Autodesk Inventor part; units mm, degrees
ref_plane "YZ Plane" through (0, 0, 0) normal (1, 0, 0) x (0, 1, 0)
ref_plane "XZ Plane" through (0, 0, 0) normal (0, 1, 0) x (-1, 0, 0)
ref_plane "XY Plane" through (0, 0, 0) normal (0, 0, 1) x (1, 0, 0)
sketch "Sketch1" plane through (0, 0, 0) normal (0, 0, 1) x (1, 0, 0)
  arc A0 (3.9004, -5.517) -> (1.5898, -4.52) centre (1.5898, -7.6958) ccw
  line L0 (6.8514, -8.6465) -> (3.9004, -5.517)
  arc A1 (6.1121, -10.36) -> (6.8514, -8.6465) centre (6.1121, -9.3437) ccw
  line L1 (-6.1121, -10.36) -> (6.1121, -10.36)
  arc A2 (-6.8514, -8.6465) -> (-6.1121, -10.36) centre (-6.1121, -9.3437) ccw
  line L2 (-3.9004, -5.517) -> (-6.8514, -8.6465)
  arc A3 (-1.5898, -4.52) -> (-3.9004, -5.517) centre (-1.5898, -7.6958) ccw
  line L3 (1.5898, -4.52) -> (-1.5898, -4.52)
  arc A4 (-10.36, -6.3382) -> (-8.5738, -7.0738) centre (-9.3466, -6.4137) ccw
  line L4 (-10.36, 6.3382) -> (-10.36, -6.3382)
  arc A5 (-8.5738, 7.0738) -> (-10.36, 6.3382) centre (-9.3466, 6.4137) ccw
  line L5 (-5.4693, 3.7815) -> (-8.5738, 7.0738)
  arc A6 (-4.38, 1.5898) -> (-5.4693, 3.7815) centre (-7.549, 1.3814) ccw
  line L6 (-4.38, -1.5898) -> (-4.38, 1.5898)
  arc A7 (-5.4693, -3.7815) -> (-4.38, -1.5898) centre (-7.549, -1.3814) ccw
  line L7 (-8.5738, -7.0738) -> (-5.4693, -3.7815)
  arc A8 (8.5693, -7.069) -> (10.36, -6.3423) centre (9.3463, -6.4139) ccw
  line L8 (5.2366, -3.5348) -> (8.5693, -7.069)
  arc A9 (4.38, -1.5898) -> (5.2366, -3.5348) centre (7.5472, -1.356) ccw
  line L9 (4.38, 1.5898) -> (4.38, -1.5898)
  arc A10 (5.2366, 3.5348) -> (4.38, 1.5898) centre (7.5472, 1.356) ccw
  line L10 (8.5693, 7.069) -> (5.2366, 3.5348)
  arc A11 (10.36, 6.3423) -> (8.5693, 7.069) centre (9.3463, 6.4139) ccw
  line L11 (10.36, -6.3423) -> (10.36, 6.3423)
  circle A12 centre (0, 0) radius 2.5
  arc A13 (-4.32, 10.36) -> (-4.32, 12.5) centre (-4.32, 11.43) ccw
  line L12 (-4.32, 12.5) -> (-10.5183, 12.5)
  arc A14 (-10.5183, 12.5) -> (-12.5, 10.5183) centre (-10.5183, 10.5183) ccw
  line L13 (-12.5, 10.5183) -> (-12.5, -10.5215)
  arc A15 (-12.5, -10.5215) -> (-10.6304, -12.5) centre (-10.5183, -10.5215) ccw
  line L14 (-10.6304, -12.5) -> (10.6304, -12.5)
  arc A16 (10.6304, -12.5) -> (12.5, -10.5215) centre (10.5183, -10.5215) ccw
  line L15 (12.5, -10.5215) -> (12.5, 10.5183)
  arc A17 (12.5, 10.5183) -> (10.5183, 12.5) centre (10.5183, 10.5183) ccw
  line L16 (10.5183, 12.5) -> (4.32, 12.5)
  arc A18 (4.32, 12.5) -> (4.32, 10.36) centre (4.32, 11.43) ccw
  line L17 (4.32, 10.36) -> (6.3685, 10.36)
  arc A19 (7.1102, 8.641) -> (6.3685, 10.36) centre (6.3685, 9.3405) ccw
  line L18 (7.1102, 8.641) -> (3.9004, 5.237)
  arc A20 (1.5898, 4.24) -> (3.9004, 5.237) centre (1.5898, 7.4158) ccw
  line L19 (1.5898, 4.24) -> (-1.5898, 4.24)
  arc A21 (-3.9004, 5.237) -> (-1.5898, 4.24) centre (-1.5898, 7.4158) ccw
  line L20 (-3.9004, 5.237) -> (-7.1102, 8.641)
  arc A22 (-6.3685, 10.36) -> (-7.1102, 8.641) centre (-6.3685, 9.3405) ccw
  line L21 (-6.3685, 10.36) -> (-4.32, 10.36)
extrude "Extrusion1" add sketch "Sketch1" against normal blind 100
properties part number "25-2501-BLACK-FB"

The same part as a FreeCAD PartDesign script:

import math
import FreeCAD as App
import Part
import Sketcher

doc = App.newDocument("Part")
body = doc.addObject("PartDesign::Body", "Body")

sketch1 = body.newObject("Sketcher::SketchObject", "Sketch")
sketch1.AttachmentSupport = (doc.getObject("XY_Plane"), [""])
sketch1.MapMode = "FlatFace"
sketch1.addGeometry(Part.LineSegment(App.Vector(-6.3685, 10.36, 0), App.Vector(-4.32, 10.36, 0)), False)
sketch1.addGeometry(Part.ArcOfCircle(Part.Circle(App.Vector(-4.32, 11.43, 0), App.Vector(0, 0, 1), 1.07), math.radians(-90), math.radians(90)), False)
sketch1.addGeometry(Part.LineSegment(App.Vector(-4.32, 12.5, 0), App.Vector(-10.5183, 12.5, 0)), False)
sketch1.addGeometry(Part.ArcOfCircle(Part.Circle(App.Vector(-10.5183, 10.5183, 0), App.Vector(0, 0, 1), 1.9817), math.radians(90), math.radians(180)), False)
sketch1.addGeometry(Part.LineSegment(App.Vector(-12.5, 10.5183, 0), App.Vector(-12.5, -10.5215, 0)), False)
sketch1.addGeometry(Part.ArcOfCircle(Part.Circle(App.Vector(-10.5183, -10.5215, 0), App.Vector(0, 0, 1), 1.9817), math.radians(180), math.radians(266.757141)), False)
sketch1.addGeometry(Part.LineSegment(App.Vector(-10.6304, -12.5, 0), App.Vector(10.6304, -12.5, 0)), False)
sketch1.addGeometry(Part.ArcOfCircle(Part.Circle(App.Vector(10.5183, -10.5215, 0), App.Vector(0, 0, 1), 1.981673), math.radians(-86.757141), math.radians(0)), False)
sketch1.addGeometry(Part.LineSegment(App.Vector(12.5, -10.5215, 0), App.Vector(12.5, 10.5183, 0)), False)
sketch1.addGeometry(Part.ArcOfCircle(Part.Circle(App.Vector(10.5183, 10.5183, 0), App.Vector(0, 0, 1), 1.9817), math.radians(0), math.radians(90)), False)
sketch1.addGeometry(Part.LineSegment(App.Vector(10.5183, 12.5, 0), App.Vector(4.32, 12.5, 0)), False)
sketch1.addGeometry(Part.ArcOfCircle(Part.Circle(App.Vector(4.32, 11.43, 0), App.Vector(0, 0, 1), 1.07), math.radians(90), math.radians(270)), False)
sketch1.addGeometry(Part.LineSegment(App.Vector(4.32, 10.36, 0), App.Vector(6.3685, 10.36, 0)), False)
sketch1.addGeometry(Part.ArcOfCircle(Part.Circle(App.Vector(6.3685, 9.3405, 0), App.Vector(0, 0, 1), 1.019519), math.radians(-43.322793), math.radians(90)), False)
sketch1.addGeometry(Part.LineSegment(App.Vector(7.1102, 8.641, 0), App.Vector(3.9004, 5.237, 0)), False)
sketch1.addGeometry(Part.ArcOfCircle(Part.Circle(App.Vector(1.5898, 7.4158, 0), App.Vector(0, 0, 1), 3.1758), math.radians(-90), math.radians(-43.318391)), False)
sketch1.addGeometry(Part.LineSegment(App.Vector(1.5898, 4.24, 0), App.Vector(-1.5898, 4.24, 0)), False)
sketch1.addGeometry(Part.ArcOfCircle(Part.Circle(App.Vector(-1.5898, 7.4158, 0), App.Vector(0, 0, 1), 3.175853), math.radians(-136.681609), math.radians(-90)), False)
sketch1.addGeometry(Part.LineSegment(App.Vector(-3.9004, 5.237, 0), App.Vector(-7.1102, 8.641, 0)), False)
sketch1.addGeometry(Part.ArcOfCircle(Part.Circle(App.Vector(-6.3685, 9.3405, 0), App.Vector(0, 0, 1), 1.0195), math.radians(90), math.radians(223.322793)), False)
sketch1.addGeometry(Part.ArcOfCircle(Part.Circle(App.Vector(1.5898, -7.6958, 0), App.Vector(0, 0, 1), 3.175853), math.radians(43.318391), math.radians(90)), False)
sketch1.addGeometry(Part.LineSegment(App.Vector(3.9004, -5.517, 0), App.Vector(6.8514, -8.6465, 0)), False)
sketch1.addGeometry(Part.ArcOfCircle(Part.Circle(App.Vector(6.1121, -9.3437, 0), App.Vector(0, 0, 1), 1.0163), math.radians(-90), math.radians(43.321293)), False)
sketch1.addGeometry(Part.LineSegment(App.Vector(6.1121, -10.36, 0), App.Vector(-6.1121, -10.36, 0)), False)
sketch1.addGeometry(Part.ArcOfCircle(Part.Circle(App.Vector(-6.1121, -9.3437, 0), App.Vector(0, 0, 1), 1.016195), math.radians(136.678707), math.radians(270)), False)
sketch1.addGeometry(Part.LineSegment(App.Vector(-6.8514, -8.6465, 0), App.Vector(-3.9004, -5.517, 0)), False)
sketch1.addGeometry(Part.ArcOfCircle(Part.Circle(App.Vector(-1.5898, -7.6958, 0), App.Vector(0, 0, 1), 3.1758), math.radians(90), math.radians(136.681609)), False)
sketch1.addGeometry(Part.LineSegment(App.Vector(-1.5898, -4.52, 0), App.Vector(1.5898, -4.52, 0)), False)
sketch1.addGeometry(Part.ArcOfCircle(Part.Circle(App.Vector(9.3463, -6.4139, 0), App.Vector(0, 0, 1), 1.01631), math.radians(-139.865275), math.radians(4.040225)), False)
sketch1.addGeometry(Part.LineSegment(App.Vector(8.5693, -7.069, 0), App.Vector(5.2366, -3.5348, 0)), False)
sketch1.addGeometry(Part.ArcOfCircle(Part.Circle(App.Vector(7.5472, -1.356, 0), App.Vector(0, 0, 1), 3.175818), math.radians(-175.778132), math.radians(-136.681609)), False)
sketch1.addGeometry(Part.LineSegment(App.Vector(4.38, -1.5898, 0), App.Vector(4.38, 1.5898, 0)), False)
sketch1.addGeometry(Part.ArcOfCircle(Part.Circle(App.Vector(7.5472, 1.356, 0), App.Vector(0, 0, 1), 3.175853), math.radians(136.681609), math.radians(175.778132)), False)
sketch1.addGeometry(Part.LineSegment(App.Vector(5.2366, 3.5348, 0), App.Vector(8.5693, 7.069, 0)), False)
sketch1.addGeometry(Part.ArcOfCircle(Part.Circle(App.Vector(9.3463, 6.4139, 0), App.Vector(0, 0, 1), 1.016225), math.radians(-4.040225), math.radians(139.865275)), False)
sketch1.addGeometry(Part.LineSegment(App.Vector(10.36, 6.3423, 0), App.Vector(10.36, -6.3423, 0)), False)
sketch1.addGeometry(Part.ArcOfCircle(Part.Circle(App.Vector(-9.3466, -6.4137, 0), App.Vector(0, 0, 1), 1.016209), math.radians(175.73924), math.radians(319.497152)), False)
sketch1.addGeometry(Part.LineSegment(App.Vector(-10.36, -6.3382, 0), App.Vector(-10.36, 6.3382, 0)), False)
sketch1.addGeometry(Part.ArcOfCircle(Part.Circle(App.Vector(-9.3466, 6.4137, 0), App.Vector(0, 0, 1), 1.016342), math.radians(40.502848), math.radians(184.26076)), False)
sketch1.addGeometry(Part.LineSegment(App.Vector(-8.5738, 7.0738, 0), App.Vector(-5.4693, 3.7815, 0)), False)
sketch1.addGeometry(Part.ArcOfCircle(Part.Circle(App.Vector(-7.549, 1.3814, 0), App.Vector(0, 0, 1), 3.175845), math.radians(3.762472), math.radians(49.090888)), False)
sketch1.addGeometry(Part.LineSegment(App.Vector(-4.38, 1.5898, 0), App.Vector(-4.38, -1.5898, 0)), False)
sketch1.addGeometry(Part.ArcOfCircle(Part.Circle(App.Vector(-7.549, -1.3814, 0), App.Vector(0, 0, 1), 3.175788), math.radians(-49.090888), math.radians(-3.762472)), False)
sketch1.addGeometry(Part.LineSegment(App.Vector(-5.4693, -3.7815, 0), App.Vector(-8.5738, -7.0738, 0)), False)
sketch1.addGeometry(Part.Circle(App.Vector(0, 0, 0), App.Vector(0, 0, 1), 2.5), False)
sketch1.addConstraint(Sketcher.Constraint("Coincident", 0, 2, 1, 1))
sketch1.addConstraint(Sketcher.Constraint("Coincident", 1, 2, 2, 1))
sketch1.addConstraint(Sketcher.Constraint("Coincident", 2, 2, 3, 1))
sketch1.addConstraint(Sketcher.Constraint("Coincident", 3, 2, 4, 1))
sketch1.addConstraint(Sketcher.Constraint("Coincident", 4, 2, 5, 1))
sketch1.addConstraint(Sketcher.Constraint("Coincident", 5, 2, 6, 1))
sketch1.addConstraint(Sketcher.Constraint("Coincident", 6, 2, 7, 1))
sketch1.addConstraint(Sketcher.Constraint("Coincident", 7, 2, 8, 1))
sketch1.addConstraint(Sketcher.Constraint("Coincident", 8, 2, 9, 1))
sketch1.addConstraint(Sketcher.Constraint("Coincident", 9, 2, 10, 1))
sketch1.addConstraint(Sketcher.Constraint("Coincident", 10, 2, 11, 1))
sketch1.addConstraint(Sketcher.Constraint("Coincident", 11, 2, 12, 1))
sketch1.addConstraint(Sketcher.Constraint("Coincident", 12, 2, 13, 2))
sketch1.addConstraint(Sketcher.Constraint("Coincident", 13, 1, 14, 1))
sketch1.addConstraint(Sketcher.Constraint("Coincident", 14, 2, 15, 2))
sketch1.addConstraint(Sketcher.Constraint("Coincident", 15, 1, 16, 1))
sketch1.addConstraint(Sketcher.Constraint("Coincident", 16, 2, 17, 2))
sketch1.addConstraint(Sketcher.Constraint("Coincident", 17, 1, 18, 1))
sketch1.addConstraint(Sketcher.Constraint("Coincident", 18, 2, 19, 2))
sketch1.addConstraint(Sketcher.Constraint("Coincident", 19, 1, 0, 1))
sketch1.addConstraint(Sketcher.Constraint("Coincident", 20, 1, 21, 1))
sketch1.addConstraint(Sketcher.Constraint("Coincident", 21, 2, 22, 2))
sketch1.addConstraint(Sketcher.Constraint("Coincident", 22, 1, 23, 1))
sketch1.addConstraint(Sketcher.Constraint("Coincident", 23, 2, 24, 2))
sketch1.addConstraint(Sketcher.Constraint("Coincident", 24, 1, 25, 1))
sketch1.addConstraint(Sketcher.Constraint("Coincident", 25, 2, 26, 2))
sketch1.addConstraint(Sketcher.Constraint("Coincident", 26, 1, 27, 1))
sketch1.addConstraint(Sketcher.Constraint("Coincident", 27, 2, 20, 2))
sketch1.addConstraint(Sketcher.Constraint("Coincident", 28, 1, 29, 1))
sketch1.addConstraint(Sketcher.Constraint("Coincident", 29, 2, 30, 2))
sketch1.addConstraint(Sketcher.Constraint("Coincident", 30, 1, 31, 1))
sketch1.addConstraint(Sketcher.Constraint("Coincident", 31, 2, 32, 2))
sketch1.addConstraint(Sketcher.Constraint("Coincident", 32, 1, 33, 1))
sketch1.addConstraint(Sketcher.Constraint("Coincident", 33, 2, 34, 2))
sketch1.addConstraint(Sketcher.Constraint("Coincident", 34, 1, 35, 1))
sketch1.addConstraint(Sketcher.Constraint("Coincident", 35, 2, 28, 2))
sketch1.addConstraint(Sketcher.Constraint("Coincident", 36, 1, 37, 1))
sketch1.addConstraint(Sketcher.Constraint("Coincident", 37, 2, 38, 2))
sketch1.addConstraint(Sketcher.Constraint("Coincident", 38, 1, 39, 1))
sketch1.addConstraint(Sketcher.Constraint("Coincident", 39, 2, 40, 2))
sketch1.addConstraint(Sketcher.Constraint("Coincident", 40, 1, 41, 1))
sketch1.addConstraint(Sketcher.Constraint("Coincident", 41, 2, 42, 2))
sketch1.addConstraint(Sketcher.Constraint("Coincident", 42, 1, 43, 1))
sketch1.addConstraint(Sketcher.Constraint("Coincident", 43, 2, 36, 2))
sketch1.addConstraint(Sketcher.Constraint("Horizontal", 0))
sketch1.addConstraint(Sketcher.Constraint("Horizontal", 2))
sketch1.addConstraint(Sketcher.Constraint("Vertical", 4))
sketch1.addConstraint(Sketcher.Constraint("Horizontal", 6))
sketch1.addConstraint(Sketcher.Constraint("Vertical", 8))
sketch1.addConstraint(Sketcher.Constraint("Horizontal", 10))
sketch1.addConstraint(Sketcher.Constraint("Horizontal", 12))
sketch1.addConstraint(Sketcher.Constraint("Horizontal", 16))
sketch1.addConstraint(Sketcher.Constraint("Horizontal", 23))
sketch1.addConstraint(Sketcher.Constraint("Horizontal", 27))
sketch1.addConstraint(Sketcher.Constraint("Vertical", 31))
sketch1.addConstraint(Sketcher.Constraint("Vertical", 35))
sketch1.addConstraint(Sketcher.Constraint("Vertical", 37))
sketch1.addConstraint(Sketcher.Constraint("Vertical", 41))
sketch1.addConstraint(Sketcher.Constraint("Coincident", 44, 3, -1, 1))
sketch1.addConstraint(Sketcher.Constraint("Diameter", 44, 5.0))
sketch1.addConstraint(Sketcher.Constraint("Radius", 1, 1.07))
sketch1.addConstraint(Sketcher.Constraint("Radius", 11, 1.07))
sketch1.addConstraint(Sketcher.Constraint("DistanceY", -1, 1, 1, 2, 12.5))
sketch1.addConstraint(Sketcher.Constraint("DistanceX", 3, 2, -1, 1, 12.5))
sketch1.addConstraint(Sketcher.Constraint("DistanceY", 5, 2, -1, 1, 12.5))
sketch1.addConstraint(Sketcher.Constraint("DistanceX", -1, 1, 7, 2, 12.5))
sketch1.addConstraint(Sketcher.Constraint("DistanceY", -1, 1, 9, 2, 12.5))
sketch1.addConstraint(Sketcher.Constraint("Radius", 3, 1.9817))
sketch1.addConstraint(Sketcher.Constraint("Radius", 5, 1.9817))
sketch1.addConstraint(Sketcher.Constraint("Radius", 7, 1.9817))
sketch1.addConstraint(Sketcher.Constraint("Radius", 9, 1.9817))
sketch1.addConstraint(Sketcher.Constraint("Radius", 13, 1.0195))
sketch1.addConstraint(Sketcher.Constraint("Radius", 15, 3.1758))
sketch1.addConstraint(Sketcher.Constraint("Radius", 17, 3.1759))
sketch1.addConstraint(Sketcher.Constraint("Radius", 19, 1.0195))
sketch1.addConstraint(Sketcher.Constraint("Radius", 20, 3.1759))
sketch1.addConstraint(Sketcher.Constraint("Radius", 22, 1.0163))
sketch1.addConstraint(Sketcher.Constraint("Radius", 24, 1.0162))
sketch1.addConstraint(Sketcher.Constraint("Radius", 26, 3.1758))
sketch1.addConstraint(Sketcher.Constraint("Radius", 28, 1.0163))
sketch1.addConstraint(Sketcher.Constraint("Radius", 30, 3.1758))
sketch1.addConstraint(Sketcher.Constraint("Radius", 32, 3.1759))
sketch1.addConstraint(Sketcher.Constraint("Radius", 34, 1.0162))
sketch1.addConstraint(Sketcher.Constraint("Radius", 36, 1.0162))
sketch1.addConstraint(Sketcher.Constraint("Radius", 38, 1.0163))
sketch1.addConstraint(Sketcher.Constraint("Radius", 40, 3.1758))
sketch1.addConstraint(Sketcher.Constraint("Radius", 42, 3.1758))
sketch1.addConstraint(Sketcher.Constraint("DistanceX", 1, 3, -1, 1, 4.32))
sketch1.addConstraint(Sketcher.Constraint("DistanceX", -1, 1, 11, 3, 4.32))
sketch1.addConstraint(Sketcher.Constraint("DistanceX", 0, 2, -1, 1, 4.32))
sketch1.addConstraint(Sketcher.Constraint("DistanceX", 1, 2, -1, 1, 4.32))
sketch1.addConstraint(Sketcher.Constraint("DistanceX", -1, 1, 10, 2, 4.32))
sketch1.addConstraint(Sketcher.Constraint("DistanceX", -1, 1, 11, 2, 4.32))
sketch1.addConstraint(Sketcher.Constraint("DistanceY", -1, 1, 15, 1, 4.24))
sketch1.addConstraint(Sketcher.Constraint("DistanceY", 22, 1, -1, 1, 10.36))
sketch1.addConstraint(Sketcher.Constraint("DistanceY", 26, 1, -1, 1, 4.52))
sketch1.addConstraint(Sketcher.Constraint("DistanceX", -1, 1, 30, 1, 4.38))
sketch1.addConstraint(Sketcher.Constraint("DistanceX", -1, 1, 34, 1, 10.36))
sketch1.addConstraint(Sketcher.Constraint("DistanceX", 36, 1, -1, 1, 10.36))
sketch1.addConstraint(Sketcher.Constraint("DistanceX", 40, 1, -1, 1, 4.38))
sketch1.addConstraint(Sketcher.Constraint("DistanceX", 0, 1, 0, 2, 2.0485))
sketch1.addConstraint(Sketcher.Constraint("DistanceX", 2, 2, 2, 1, 6.1983))
sketch1.addConstraint(Sketcher.Constraint("DistanceX", 6, 1, 6, 2, 21.2608))
sketch1.addConstraint(Sketcher.Constraint("DistanceX", 10, 2, 10, 1, 6.1983))
sketch1.addConstraint(Sketcher.Constraint("DistanceX", 12, 1, 12, 2, 2.0485))
sketch1.addConstraint(Sketcher.Constraint("DistanceX", 16, 2, 16, 1, 3.1796))
sketch1.addConstraint(Sketcher.Constraint("DistanceX", 23, 2, 23, 1, 12.2242))
sketch1.addConstraint(Sketcher.Constraint("DistanceX", 27, 1, 27, 2, 3.1796))
sketch1.addConstraint(Sketcher.Constraint("DistanceY", 4, 2, 4, 1, 21.0398))
sketch1.addConstraint(Sketcher.Constraint("DistanceY", 8, 1, 8, 2, 21.0398))
sketch1.addConstraint(Sketcher.Constraint("DistanceY", 31, 1, 31, 2, 3.1796))
sketch1.addConstraint(Sketcher.Constraint("DistanceY", 35, 2, 35, 1, 12.6846))
sketch1.addConstraint(Sketcher.Constraint("DistanceY", 37, 1, 37, 2, 12.6764))
sketch1.addConstraint(Sketcher.Constraint("DistanceY", 41, 2, 41, 1, 3.1796))
sketch1.addConstraint(Sketcher.Constraint("DistanceX", -1, 1, 22, 3, 6.112))
sketch1.addConstraint(Sketcher.Constraint("DistanceX", 24, 3, -1, 1, 6.112))
sketch1.addConstraint(Sketcher.Constraint("DistanceY", 28, 3, -1, 1, 6.414))
sketch1.addConstraint(Sketcher.Constraint("DistanceY", 30, 3, -1, 1, 1.356))
sketch1.addConstraint(Sketcher.Constraint("DistanceY", -1, 1, 32, 3, 1.356))
sketch1.addConstraint(Sketcher.Constraint("DistanceY", -1, 1, 34, 3, 6.414))
sketch1.addConstraint(Sketcher.Constraint("DistanceX", 40, 3, -1, 1, 7.549))
sketch1.addConstraint(Sketcher.Constraint("DistanceX", 42, 3, -1, 1, 7.549))
sketch1.addConstraint(Sketcher.Constraint("DistanceY", -1, 1, 13, 1, 8.641))
sketch1.addConstraint(Sketcher.Constraint("DistanceY", -1, 1, 14, 2, 5.237))
sketch1.addConstraint(Sketcher.Constraint("DistanceY", -1, 1, 17, 1, 5.237))
sketch1.addConstraint(Sketcher.Constraint("DistanceY", -1, 1, 18, 2, 8.641))
sketch1.addConstraint(Sketcher.Constraint("DistanceY", 20, 1, -1, 1, 5.517))
sketch1.addConstraint(Sketcher.Constraint("DistanceX", -1, 1, 22, 1, 6.112))
sketch1.addConstraint(Sketcher.Constraint("DistanceY", 25, 2, -1, 1, 5.517))
sketch1.addConstraint(Sketcher.Constraint("DistanceY", 28, 1, -1, 1, 7.069))
sketch1.addConstraint(Sketcher.Constraint("DistanceY", -1, 1, 33, 2, 7.069))
sketch1.addConstraint(Sketcher.Constraint("Distance", 14, 4.6787))
sketch1.addConstraint(Sketcher.Constraint("Distance", 18, 4.6787))
sketch1.addConstraint(Sketcher.Constraint("Distance", 21, 4.3014))
sketch1.addConstraint(Sketcher.Constraint("Distance", 25, 4.3014))
sketch1.addConstraint(Sketcher.Constraint("Distance", 29, 4.8577))
sketch1.addConstraint(Sketcher.Constraint("Distance", 33, 4.8577))
sketch1.addConstraint(Sketcher.Constraint("Distance", 39, 4.5252))
sketch1.addConstraint(Sketcher.Constraint("Distance", 43, 4.5252))
sketch1.addConstraint(Sketcher.Constraint("DistanceY", 5, 3, -1, 1, 10.5215))
sketch1.addConstraint(Sketcher.Constraint("DistanceX", -1, 1, 13, 3, 6.3685))
sketch1.addConstraint(Sketcher.Constraint("DistanceX", 17, 3, -1, 1, 1.5898))
sketch1.addConstraint(Sketcher.Constraint("DistanceX", -1, 1, 20, 3, 1.5898))
sketch1.addConstraint(Sketcher.Constraint("DistanceX", 26, 3, -1, 1, 1.5898))
sketch1.addConstraint(Sketcher.Constraint("DistanceX", -1, 1, 28, 3, 9.3463))
sketch1.addConstraint(Sketcher.Constraint("DistanceX", -1, 1, 30, 3, 7.5472))
sketch1.addConstraint(Sketcher.Constraint("DistanceX", 36, 3, -1, 1, 9.3466))
sketch1.addConstraint(Sketcher.Constraint("DistanceY", 36, 3, -1, 1, 6.4137))
sketch1.addConstraint(Sketcher.Constraint("DistanceX", 38, 3, -1, 1, 9.3466))
sketch1.addConstraint(Sketcher.Constraint("DistanceY", -1, 1, 40, 3, 1.3814))
sketch1.addConstraint(Sketcher.Constraint("DistanceY", -1, 1, 3, 2, 10.5183))
sketch1.addConstraint(Sketcher.Constraint("DistanceY", 7, 2, -1, 1, 10.5215))
sketch1.addConstraint(Sketcher.Constraint("DistanceX", -1, 1, 15, 1, 1.5898))
sketch1.addConstraint(Sketcher.Constraint("DistanceX", 26, 1, -1, 1, 1.5898))
sketch1.addConstraint(Sketcher.Constraint("DistanceX", 38, 1, -1, 1, 8.5738))
sketch1.addConstraint(Sketcher.Constraint("DistanceX", 42, 1, -1, 1, 5.4693))
pad1 = body.newObject("PartDesign::Pad", "Pad")
pad1.Profile = sketch1
pad1.Length = 100
pad1.Reversed = True

doc.recompute()
